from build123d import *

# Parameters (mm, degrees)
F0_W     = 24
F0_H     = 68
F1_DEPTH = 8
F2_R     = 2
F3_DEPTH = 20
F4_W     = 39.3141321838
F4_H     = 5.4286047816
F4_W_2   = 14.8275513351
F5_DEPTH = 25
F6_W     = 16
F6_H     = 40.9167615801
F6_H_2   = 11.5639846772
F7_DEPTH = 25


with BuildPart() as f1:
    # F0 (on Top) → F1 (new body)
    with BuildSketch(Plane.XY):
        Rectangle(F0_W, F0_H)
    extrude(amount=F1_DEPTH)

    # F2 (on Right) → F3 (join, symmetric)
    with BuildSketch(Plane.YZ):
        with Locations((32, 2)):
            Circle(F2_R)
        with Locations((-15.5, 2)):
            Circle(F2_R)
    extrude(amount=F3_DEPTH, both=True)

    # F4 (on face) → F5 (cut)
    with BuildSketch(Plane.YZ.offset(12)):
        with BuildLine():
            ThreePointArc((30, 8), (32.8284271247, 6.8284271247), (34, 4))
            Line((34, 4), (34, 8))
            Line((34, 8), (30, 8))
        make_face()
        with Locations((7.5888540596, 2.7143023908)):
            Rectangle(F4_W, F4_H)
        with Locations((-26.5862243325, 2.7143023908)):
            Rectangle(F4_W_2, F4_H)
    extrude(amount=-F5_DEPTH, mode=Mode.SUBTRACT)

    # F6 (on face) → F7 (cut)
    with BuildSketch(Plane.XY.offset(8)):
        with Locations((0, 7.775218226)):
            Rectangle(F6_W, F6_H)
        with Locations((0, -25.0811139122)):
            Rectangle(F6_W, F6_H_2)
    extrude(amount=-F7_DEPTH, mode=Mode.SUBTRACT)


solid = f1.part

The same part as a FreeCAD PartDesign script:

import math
import FreeCAD as App
import Part
import Sketcher
from FreeCAD import Vector


def add_polygon(sketch, points):
    """Adds a closed chain of lines whose ends are joined by coincident constraints."""
    first, n = sketch.GeometryCount, len(points)
    for a, b in zip(points, points[1:] + points[:1]):
        sketch.addGeometry(Part.LineSegment(App.Vector(*a, 0), App.Vector(*b, 0)), False)
    for i in range(n):
        sketch.addConstraint(Sketcher.Constraint("Coincident", first + i, 2, first + (i + 1) % n, 1))

doc = App.newDocument("Part")
body = doc.addObject("PartDesign::Body", "Body")

sketch1 = body.newObject("Sketcher::SketchObject", "Sketch")
sketch1.AttachmentSupport = (doc.getObject("XY_Plane"), [""])
sketch1.MapMode = "FlatFace"
add_polygon(sketch1, [(-12, 34), (-12, -34), (12, -34), (12, 34)])
sketch1.addConstraint([
    Sketcher.Constraint("Vertical", 0),
    Sketcher.Constraint("Horizontal", 1),
    Sketcher.Constraint("Vertical", 2),
    Sketcher.Constraint("Horizontal", 3),
    Sketcher.Constraint("Symmetric", 0, 2, 2, 2, -1, 1),
    Sketcher.Constraint("DistanceX", 1, 1, 1, 2, 24.0),
    Sketcher.Constraint("DistanceY", 0, 2, 0, 1, 68.0),
])
pad1 = body.newObject("PartDesign::Pad", "Pad")
pad1.Profile = sketch1
pad1.Length = 8

sketch2 = body.newObject("Sketcher::SketchObject", "Sketch001")
sketch2.AttachmentSupport = (doc.getObject("YZ_Plane"), [""])
sketch2.MapMode = "FlatFace"
sketch2.addGeometry([
    Part.Circle(Vector(32, 2, 0), Vector(0, 0, 1), 2),
    Part.Circle(Vector(-15.5, 2, 0), Vector(0, 0, 1), 2),
], False)
sketch2.addConstraint([
    Sketcher.Constraint("Equal", 0, 1),
    Sketcher.Constraint("Horizontal", 0, 3, 1, 3),
    Sketcher.Constraint("Diameter", 0, 4.0),
    Sketcher.Constraint("DistanceX", -1, 1, 0, 3, 32.0),
    Sketcher.Constraint("DistanceY", -1, 1, 0, 3, 2.0),
    Sketcher.Constraint("DistanceX", 1, 3, -1, 1, 15.5),
])
pad2 = body.newObject("PartDesign::Pad", "Pad001")
pad2.Profile = sketch2
pad2.Length = 40
pad2.Midplane = True

sketch3 = body.newObject("Sketcher::SketchObject", "Sketch002")
sketch3.AttachmentSupport = (doc.getObject("YZ_Plane"), [""])
sketch3.MapMode = "FlatFace"
sketch3.AttachmentOffset = App.Placement(Vector(0, 0, 12), App.Rotation())
sketch3.addGeometry(Part.ArcOfCircle(Part.Circle(Vector(30, 4, 0), Vector(0, 0, 1), 4), math.radians(0), math.radians(90)), False)
sketch3.addGeometry(Part.LineSegment(Vector(34, 4, 0), Vector(34, 8, 0)), False)
sketch3.addGeometry(Part.LineSegment(Vector(34, 8, 0), Vector(30, 8, 0)), False)
add_polygon(sketch3, [(-12.1, 5.4), (-12.1, 0), (27.2, 0), (27.2, 5.4)])
add_polygon(sketch3, [(-34, 5.4), (-34, 0), (-19.2, 0), (-19.2, 5.4)])
sketch3.addConstraint([
    Sketcher.Constraint("Tangent", 0, 1, 1, 1),
    Sketcher.Constraint("Coincident", 1, 2, 2, 1),
    Sketcher.Constraint("Tangent", 2, 2, 0, 2),
    Sketcher.Constraint("Vertical", 1),
    Sketcher.Constraint("Horizontal", 2),
    Sketcher.Constraint("Vertical", 3),
    Sketcher.Constraint("Horizontal", 4),
    Sketcher.Constraint("Vertical", 5),
    Sketcher.Constraint("Horizontal", 6),
    Sketcher.Constraint("Vertical", 7),
    Sketcher.Constraint("Horizontal", 8),
    Sketcher.Constraint("Vertical", 9),
    Sketcher.Constraint("Horizontal", 10),
    Sketcher.Constraint("PointOnObject", 3, 2, -1),
    Sketcher.Constraint("PointOnObject", 7, 2, -1),
    Sketcher.Constraint("Horizontal", 6, 2, 9, 2),
    Sketcher.Constraint("Radius", 0, 4.0),
    Sketcher.Constraint("DistanceX", -1, 1, 0, 3, 30.0),
    Sketcher.Constraint("DistanceY", -1, 1, 0, 3, 4.0),
    Sketcher.Constraint("DistanceX", 7, 2, -1, 1, 34.0),
    Sketcher.Constraint("DistanceX", 8, 1, 8, 2, 14.827551),
    Sketcher.Constraint("DistanceX", 4, 1, 4, 2, 39.314132),
    Sketcher.Constraint("DistanceY", 3, 2, 3, 1, 5.428605),
    Sketcher.Constraint("DistanceX", -1, 1, 4, 2, 27.24592),
])
pocket1 = body.newObject("PartDesign::Pocket", "Pocket")
pocket1.Profile = sketch3
pocket1.Length = 25

sketch4 = body.newObject("Sketcher::SketchObject", "Sketch003")
sketch4.AttachmentSupport = (doc.getObject("XY_Plane"), [""])
sketch4.MapMode = "FlatFace"
sketch4.AttachmentOffset = App.Placement(Vector(0, 0, 8), App.Rotation())
add_polygon(sketch4, [(-8, 28), (-8, -13), (8, -13), (8, 28)])
add_polygon(sketch4, [(-8, -19), (-8, -31), (8, -31), (8, -19)])
sketch4.addConstraint([
    Sketcher.Constraint("Vertical", 0),
    Sketcher.Constraint("Horizontal", 1),
    Sketcher.Constraint("Vertical", 2),
    Sketcher.Constraint("Horizontal", 3),
    Sketcher.Constraint("Vertical", 4),
    Sketcher.Constraint("Horizontal", 5),
    Sketcher.Constraint("Vertical", 6),
    Sketcher.Constraint("Horizontal", 7),
    Sketcher.Constraint("Vertical", 3, 2, 4, 2),
    Sketcher.Constraint("Vertical", 2, 2, 5, 2),
    Sketcher.Constraint("DistanceX", 1, 1, 1, 2, 16.0),
    Sketcher.Constraint("DistanceX", 0, 2, -1, 1, 8.0),
    Sketcher.Constraint("DistanceY", 0, 2, 0, 1, 40.916762),
    Sketcher.Constraint("DistanceY", -1, 1, 2, 2, 28.233599),
    Sketcher.Constraint("DistanceY", 4, 2, 4, 1, 11.563985),
    Sketcher.Constraint("DistanceY", 6, 2, -1, 1, 19.299122),
])
pocket2 = body.newObject("PartDesign::Pocket", "Pocket001")
pocket2.Profile = sketch4
pocket2.Length = 25

doc.recompute()
